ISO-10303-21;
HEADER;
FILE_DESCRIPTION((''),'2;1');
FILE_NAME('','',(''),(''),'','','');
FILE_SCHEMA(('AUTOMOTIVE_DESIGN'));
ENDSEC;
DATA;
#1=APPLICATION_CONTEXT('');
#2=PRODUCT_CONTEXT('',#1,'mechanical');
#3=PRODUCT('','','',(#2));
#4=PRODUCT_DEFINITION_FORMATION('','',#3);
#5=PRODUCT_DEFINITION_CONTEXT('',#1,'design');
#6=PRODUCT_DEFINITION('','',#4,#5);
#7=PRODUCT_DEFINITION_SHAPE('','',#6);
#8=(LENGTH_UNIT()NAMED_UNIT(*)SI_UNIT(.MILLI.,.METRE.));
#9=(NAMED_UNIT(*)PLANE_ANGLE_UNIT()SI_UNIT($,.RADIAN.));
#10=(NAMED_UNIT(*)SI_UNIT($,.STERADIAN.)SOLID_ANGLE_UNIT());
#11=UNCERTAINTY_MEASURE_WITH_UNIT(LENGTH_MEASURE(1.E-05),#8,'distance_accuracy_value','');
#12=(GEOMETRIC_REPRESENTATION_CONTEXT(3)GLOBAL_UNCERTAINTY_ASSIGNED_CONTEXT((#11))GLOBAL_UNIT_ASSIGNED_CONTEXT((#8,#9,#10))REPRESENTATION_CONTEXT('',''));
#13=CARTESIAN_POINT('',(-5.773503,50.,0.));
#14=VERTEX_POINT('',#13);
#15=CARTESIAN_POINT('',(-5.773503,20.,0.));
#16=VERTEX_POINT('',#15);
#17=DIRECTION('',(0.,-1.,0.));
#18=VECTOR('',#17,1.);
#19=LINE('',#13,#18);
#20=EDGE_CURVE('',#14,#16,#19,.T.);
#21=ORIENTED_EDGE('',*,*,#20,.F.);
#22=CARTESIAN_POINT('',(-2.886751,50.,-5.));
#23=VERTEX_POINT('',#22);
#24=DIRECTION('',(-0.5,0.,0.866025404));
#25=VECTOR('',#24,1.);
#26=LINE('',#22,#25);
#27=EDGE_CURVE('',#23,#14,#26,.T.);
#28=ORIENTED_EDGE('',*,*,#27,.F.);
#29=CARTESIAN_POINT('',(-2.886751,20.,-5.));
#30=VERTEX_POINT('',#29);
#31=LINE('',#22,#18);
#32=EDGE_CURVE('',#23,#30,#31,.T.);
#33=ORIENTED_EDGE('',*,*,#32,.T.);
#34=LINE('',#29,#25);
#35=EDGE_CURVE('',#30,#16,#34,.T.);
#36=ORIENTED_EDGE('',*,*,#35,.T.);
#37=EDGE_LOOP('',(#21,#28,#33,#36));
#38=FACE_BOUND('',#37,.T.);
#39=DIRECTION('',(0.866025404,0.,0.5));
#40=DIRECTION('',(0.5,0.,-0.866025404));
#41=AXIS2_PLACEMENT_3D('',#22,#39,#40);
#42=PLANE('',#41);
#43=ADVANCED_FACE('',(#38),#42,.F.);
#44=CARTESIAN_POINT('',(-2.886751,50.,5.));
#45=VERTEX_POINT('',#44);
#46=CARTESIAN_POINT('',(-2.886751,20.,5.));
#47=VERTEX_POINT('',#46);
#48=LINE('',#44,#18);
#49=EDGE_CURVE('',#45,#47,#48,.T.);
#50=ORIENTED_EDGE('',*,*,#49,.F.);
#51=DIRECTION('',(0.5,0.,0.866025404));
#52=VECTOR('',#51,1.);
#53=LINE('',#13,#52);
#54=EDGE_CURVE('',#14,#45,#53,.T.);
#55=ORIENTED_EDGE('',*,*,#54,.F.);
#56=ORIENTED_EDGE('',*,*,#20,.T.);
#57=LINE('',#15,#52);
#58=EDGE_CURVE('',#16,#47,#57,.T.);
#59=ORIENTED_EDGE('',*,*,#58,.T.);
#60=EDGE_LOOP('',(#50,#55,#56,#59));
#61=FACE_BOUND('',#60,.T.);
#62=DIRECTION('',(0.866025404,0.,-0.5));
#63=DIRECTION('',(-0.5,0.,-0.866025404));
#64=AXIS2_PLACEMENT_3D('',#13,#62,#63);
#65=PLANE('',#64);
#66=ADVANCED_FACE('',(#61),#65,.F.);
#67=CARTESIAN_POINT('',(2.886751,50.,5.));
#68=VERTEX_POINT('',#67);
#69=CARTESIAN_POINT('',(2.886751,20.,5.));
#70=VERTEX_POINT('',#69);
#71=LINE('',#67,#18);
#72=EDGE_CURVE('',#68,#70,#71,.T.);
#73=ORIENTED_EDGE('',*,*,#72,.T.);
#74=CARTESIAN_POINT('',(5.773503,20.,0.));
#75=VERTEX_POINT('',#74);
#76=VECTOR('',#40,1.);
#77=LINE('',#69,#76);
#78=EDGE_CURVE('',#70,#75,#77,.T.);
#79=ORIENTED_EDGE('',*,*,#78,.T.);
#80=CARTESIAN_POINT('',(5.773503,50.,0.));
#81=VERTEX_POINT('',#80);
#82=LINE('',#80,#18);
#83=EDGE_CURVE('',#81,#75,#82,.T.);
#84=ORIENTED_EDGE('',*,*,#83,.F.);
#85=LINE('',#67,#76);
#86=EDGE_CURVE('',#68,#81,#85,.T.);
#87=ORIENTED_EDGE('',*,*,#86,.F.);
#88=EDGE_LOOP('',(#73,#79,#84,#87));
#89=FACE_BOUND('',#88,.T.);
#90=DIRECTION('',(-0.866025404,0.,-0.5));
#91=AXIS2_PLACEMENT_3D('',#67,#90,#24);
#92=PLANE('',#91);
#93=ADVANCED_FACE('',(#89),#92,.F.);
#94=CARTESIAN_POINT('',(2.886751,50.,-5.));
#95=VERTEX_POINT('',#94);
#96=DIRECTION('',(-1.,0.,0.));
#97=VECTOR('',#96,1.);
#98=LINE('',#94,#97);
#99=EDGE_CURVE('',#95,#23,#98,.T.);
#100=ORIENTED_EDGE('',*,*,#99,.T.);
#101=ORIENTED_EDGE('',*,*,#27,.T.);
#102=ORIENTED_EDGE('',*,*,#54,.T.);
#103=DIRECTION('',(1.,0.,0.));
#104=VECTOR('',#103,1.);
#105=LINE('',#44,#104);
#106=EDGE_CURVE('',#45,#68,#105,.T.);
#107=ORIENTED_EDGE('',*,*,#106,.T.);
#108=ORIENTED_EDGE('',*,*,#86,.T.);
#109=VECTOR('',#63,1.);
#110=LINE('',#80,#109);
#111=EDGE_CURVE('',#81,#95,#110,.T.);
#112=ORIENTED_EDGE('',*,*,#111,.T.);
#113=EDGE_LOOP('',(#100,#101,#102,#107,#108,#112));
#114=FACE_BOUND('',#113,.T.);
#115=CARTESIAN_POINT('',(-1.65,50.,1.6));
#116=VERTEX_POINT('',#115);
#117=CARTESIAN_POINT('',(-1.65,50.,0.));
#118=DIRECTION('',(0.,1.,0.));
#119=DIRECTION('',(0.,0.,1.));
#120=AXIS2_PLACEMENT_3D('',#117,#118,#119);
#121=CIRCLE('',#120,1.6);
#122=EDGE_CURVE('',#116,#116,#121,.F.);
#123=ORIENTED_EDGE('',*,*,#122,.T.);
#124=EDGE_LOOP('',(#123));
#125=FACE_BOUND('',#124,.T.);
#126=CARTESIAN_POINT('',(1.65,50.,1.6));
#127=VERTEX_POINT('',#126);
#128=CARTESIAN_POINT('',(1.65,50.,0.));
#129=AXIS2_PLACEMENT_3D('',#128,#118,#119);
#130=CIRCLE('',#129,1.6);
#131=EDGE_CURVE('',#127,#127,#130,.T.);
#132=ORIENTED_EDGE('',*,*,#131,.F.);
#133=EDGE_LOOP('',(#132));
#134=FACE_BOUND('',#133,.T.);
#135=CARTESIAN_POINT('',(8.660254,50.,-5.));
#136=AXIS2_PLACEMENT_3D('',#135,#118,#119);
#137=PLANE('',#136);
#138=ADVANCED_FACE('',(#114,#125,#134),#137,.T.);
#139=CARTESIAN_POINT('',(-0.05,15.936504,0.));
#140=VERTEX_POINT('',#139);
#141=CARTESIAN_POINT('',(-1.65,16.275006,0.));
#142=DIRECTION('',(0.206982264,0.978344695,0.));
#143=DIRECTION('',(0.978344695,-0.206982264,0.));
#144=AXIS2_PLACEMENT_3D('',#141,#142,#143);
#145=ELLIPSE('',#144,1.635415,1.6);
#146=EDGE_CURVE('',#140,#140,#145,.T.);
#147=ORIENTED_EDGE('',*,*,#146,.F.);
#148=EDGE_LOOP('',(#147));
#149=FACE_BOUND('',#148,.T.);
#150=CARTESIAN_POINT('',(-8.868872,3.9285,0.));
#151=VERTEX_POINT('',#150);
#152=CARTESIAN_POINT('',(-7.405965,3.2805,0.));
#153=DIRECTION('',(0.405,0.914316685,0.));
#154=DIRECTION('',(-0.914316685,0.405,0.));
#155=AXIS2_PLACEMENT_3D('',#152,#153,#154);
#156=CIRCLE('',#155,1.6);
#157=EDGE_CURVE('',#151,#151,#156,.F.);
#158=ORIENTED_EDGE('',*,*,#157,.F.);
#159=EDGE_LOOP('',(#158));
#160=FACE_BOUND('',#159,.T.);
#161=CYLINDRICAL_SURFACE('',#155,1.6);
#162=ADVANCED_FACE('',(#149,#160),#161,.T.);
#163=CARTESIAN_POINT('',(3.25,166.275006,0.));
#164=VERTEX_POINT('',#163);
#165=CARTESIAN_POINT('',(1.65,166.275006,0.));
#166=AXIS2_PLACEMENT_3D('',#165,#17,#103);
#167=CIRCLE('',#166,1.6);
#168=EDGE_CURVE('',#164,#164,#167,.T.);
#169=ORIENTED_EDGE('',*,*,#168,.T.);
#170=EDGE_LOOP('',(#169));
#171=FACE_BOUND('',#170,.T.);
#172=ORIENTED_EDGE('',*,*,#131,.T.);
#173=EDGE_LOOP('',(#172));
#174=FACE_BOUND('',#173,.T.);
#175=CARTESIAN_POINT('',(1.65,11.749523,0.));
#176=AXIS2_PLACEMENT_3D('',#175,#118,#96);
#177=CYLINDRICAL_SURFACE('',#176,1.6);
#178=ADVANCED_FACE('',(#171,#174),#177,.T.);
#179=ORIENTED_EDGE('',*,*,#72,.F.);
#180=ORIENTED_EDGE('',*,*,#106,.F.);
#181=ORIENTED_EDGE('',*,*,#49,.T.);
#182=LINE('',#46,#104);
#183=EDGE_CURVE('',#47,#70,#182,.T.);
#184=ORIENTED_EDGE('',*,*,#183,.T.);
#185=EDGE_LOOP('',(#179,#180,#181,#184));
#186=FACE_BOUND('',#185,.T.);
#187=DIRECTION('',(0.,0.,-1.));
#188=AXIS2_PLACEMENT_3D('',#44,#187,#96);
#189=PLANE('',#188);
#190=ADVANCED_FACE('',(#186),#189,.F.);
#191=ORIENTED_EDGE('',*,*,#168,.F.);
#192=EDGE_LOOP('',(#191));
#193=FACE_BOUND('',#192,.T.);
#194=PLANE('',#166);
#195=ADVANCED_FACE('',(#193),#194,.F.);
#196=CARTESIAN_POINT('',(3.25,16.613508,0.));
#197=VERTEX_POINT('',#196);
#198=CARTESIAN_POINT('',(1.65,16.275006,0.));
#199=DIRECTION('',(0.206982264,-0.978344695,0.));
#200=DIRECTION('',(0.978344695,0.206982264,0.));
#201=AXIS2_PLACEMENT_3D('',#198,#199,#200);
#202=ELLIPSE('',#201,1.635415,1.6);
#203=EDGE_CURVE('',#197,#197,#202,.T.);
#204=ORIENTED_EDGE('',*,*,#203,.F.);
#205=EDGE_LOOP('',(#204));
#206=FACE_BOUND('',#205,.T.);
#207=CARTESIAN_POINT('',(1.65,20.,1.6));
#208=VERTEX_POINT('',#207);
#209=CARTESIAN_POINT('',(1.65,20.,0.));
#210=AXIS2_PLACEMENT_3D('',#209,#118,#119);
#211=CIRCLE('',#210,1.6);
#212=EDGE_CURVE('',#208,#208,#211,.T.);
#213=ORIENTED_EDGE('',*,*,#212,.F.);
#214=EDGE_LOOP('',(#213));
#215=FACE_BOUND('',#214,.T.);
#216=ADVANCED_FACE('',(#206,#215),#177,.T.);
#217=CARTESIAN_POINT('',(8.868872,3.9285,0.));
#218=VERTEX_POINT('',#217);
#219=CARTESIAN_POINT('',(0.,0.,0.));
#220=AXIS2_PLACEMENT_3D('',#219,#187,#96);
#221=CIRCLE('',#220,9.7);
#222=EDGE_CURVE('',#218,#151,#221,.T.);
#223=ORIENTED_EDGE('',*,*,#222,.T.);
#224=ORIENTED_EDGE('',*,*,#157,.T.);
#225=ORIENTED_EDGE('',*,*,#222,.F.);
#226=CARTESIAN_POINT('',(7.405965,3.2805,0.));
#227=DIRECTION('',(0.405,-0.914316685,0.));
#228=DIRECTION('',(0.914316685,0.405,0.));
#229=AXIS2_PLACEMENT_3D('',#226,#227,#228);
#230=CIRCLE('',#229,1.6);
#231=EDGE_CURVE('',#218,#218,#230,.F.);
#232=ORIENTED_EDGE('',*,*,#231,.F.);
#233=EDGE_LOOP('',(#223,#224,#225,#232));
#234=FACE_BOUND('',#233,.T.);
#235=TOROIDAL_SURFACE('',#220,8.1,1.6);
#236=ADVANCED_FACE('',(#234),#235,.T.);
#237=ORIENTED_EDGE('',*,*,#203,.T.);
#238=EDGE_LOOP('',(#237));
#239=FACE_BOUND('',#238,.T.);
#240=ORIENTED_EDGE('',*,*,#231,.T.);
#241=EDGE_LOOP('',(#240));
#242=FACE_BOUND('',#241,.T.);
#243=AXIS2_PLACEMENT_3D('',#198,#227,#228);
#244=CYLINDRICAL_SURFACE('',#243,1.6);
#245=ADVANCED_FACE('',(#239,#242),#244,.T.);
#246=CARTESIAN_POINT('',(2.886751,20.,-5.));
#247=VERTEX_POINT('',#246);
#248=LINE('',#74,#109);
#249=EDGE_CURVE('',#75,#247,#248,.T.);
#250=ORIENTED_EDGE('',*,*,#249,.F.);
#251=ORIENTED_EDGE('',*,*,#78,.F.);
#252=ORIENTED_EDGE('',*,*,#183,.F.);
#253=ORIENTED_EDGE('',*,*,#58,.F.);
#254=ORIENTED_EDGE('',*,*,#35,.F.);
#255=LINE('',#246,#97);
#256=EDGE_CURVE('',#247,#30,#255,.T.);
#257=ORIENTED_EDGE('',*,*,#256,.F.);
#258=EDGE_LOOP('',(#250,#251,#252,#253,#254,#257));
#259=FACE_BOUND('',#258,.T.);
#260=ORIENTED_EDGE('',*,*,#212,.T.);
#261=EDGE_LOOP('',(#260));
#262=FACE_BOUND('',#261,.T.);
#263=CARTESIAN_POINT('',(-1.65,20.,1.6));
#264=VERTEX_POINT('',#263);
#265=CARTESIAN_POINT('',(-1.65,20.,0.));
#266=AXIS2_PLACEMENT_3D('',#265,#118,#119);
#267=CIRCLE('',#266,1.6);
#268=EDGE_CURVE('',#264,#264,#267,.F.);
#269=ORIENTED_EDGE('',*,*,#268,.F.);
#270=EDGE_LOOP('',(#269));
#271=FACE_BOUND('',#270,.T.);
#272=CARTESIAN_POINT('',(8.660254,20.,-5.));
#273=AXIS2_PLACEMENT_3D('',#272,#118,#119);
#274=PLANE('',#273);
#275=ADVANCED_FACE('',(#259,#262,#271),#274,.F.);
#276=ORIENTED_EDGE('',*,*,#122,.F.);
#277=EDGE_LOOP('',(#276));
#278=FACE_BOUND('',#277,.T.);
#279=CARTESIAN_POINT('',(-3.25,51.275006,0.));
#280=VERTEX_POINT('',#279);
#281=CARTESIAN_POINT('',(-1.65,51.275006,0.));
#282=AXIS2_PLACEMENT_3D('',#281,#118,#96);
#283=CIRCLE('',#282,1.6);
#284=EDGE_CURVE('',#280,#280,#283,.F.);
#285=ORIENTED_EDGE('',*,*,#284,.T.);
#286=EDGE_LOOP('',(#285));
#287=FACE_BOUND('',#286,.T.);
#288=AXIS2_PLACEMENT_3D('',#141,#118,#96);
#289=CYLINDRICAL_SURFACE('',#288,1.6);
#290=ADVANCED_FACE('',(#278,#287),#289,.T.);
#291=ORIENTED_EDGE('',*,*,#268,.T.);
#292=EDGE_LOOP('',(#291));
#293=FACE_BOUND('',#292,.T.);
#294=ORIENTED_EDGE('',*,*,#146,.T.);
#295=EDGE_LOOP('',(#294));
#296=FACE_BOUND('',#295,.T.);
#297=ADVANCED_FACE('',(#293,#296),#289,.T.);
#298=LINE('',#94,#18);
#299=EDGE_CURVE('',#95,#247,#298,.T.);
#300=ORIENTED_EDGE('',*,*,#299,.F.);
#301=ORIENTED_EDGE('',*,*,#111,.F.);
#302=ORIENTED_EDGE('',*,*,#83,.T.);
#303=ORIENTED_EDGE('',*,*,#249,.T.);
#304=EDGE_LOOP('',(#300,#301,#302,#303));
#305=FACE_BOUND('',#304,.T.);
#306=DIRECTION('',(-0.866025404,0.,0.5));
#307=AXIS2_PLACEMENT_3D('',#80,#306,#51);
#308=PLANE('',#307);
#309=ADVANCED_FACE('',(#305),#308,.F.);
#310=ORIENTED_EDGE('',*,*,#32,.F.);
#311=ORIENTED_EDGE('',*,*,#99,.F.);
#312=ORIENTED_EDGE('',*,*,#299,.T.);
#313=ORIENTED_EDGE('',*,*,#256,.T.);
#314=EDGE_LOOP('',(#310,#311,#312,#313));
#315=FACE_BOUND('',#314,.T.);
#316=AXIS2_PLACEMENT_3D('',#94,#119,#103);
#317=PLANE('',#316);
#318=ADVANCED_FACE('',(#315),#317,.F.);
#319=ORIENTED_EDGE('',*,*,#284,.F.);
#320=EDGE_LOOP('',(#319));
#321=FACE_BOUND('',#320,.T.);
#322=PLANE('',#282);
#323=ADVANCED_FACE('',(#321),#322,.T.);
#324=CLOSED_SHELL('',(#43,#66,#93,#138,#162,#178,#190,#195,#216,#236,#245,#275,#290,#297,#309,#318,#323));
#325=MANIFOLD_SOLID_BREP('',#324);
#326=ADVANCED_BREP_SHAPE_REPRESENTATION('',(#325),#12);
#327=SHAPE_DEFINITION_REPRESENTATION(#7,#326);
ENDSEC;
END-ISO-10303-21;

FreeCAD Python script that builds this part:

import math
import FreeCAD as App
import Part
import Sketcher
from FreeCAD import Vector
Q = App.Units.Quantity


def add_polygon(sketch, points):
    """Adds a closed chain of lines whose ends are joined by coincident constraints."""
    first, n = sketch.GeometryCount, len(points)
    for a, b in zip(points, points[1:] + points[:1]):
        sketch.addGeometry(Part.LineSegment(App.Vector(*a, 0), App.Vector(*b, 0)), False)
    for i in range(n):
        sketch.addConstraint(Sketcher.Constraint("Coincident", first + i, 2, first + (i + 1) % n, 1))

doc = App.newDocument("Part")
body = doc.addObject("PartDesign::Body", "Body")

sketch1 = body.newObject("Sketcher::SketchObject", "Sketch")
sketch1.AttachmentSupport = (doc.getObject("XZ_Plane"), [""])
sketch1.MapMode = "FlatFace"
sketch1.AttachmentOffset = App.Placement(Vector(0, 0, -166.275006), App.Rotation())
sketch1.addGeometry(Part.Circle(Vector(1.65, 0, 0), Vector(0, 0, 1), 1.6), False)
sketch1.addConstraint([
    Sketcher.Constraint("PointOnObject", 0, 3, -1),
    Sketcher.Constraint("Diameter", 0, Q("3.2 mm")),
    Sketcher.Constraint("DistanceX", -1, 1, 0, 3, Q("1.65 mm")),
])

sketch2 = body.newObject("Sketcher::SketchObject", "Sketch001")
sketch2.AttachmentSupport = (doc.getObject("XY_Plane"), [""])
sketch2.MapMode = "FlatFace"
sketch2.addGeometry([
    Part.LineSegment(Vector(1.65, 166.275006, 0), Vector(1.65, 16.275006, 0)),
    Part.LineSegment(Vector(1.65, 16.275006, 0), Vector(7.405965, 3.2805, 0)),
    Part.ArcOfCircle(Part.Circle(Vector(0, 0, 0), Vector(0, 0, 1), 8.1), math.radians(156.108873), math.radians(383.891127)),
    Part.LineSegment(Vector(-7.405965, 3.2805, 0), Vector(-1.65, 16.275006, 0)),
    Part.LineSegment(Vector(-1.65, 16.275006, 0), Vector(-1.65, 51.275006, 0)),
], False)
sketch2.addConstraint([
    Sketcher.Constraint("Coincident", 0, 2, 1, 1),
    Sketcher.Constraint("Tangent", 1, 2, 2, 2),
    Sketcher.Constraint("Tangent", 2, 1, 3, 1),
    Sketcher.Constraint("Coincident", 3, 2, 4, 1),
    Sketcher.Constraint("Vertical", 0),
    Sketcher.Constraint("Vertical", 4),
    Sketcher.Constraint("Coincident", 2, 3, -1, 1),
    Sketcher.Constraint("Symmetric", 0, 2, 3, 2, -2),
    Sketcher.Constraint("Radius", 2, Q("8.1 mm")),
    Sketcher.Constraint("DistanceY", 0, 2, 0, 1, Q("150 mm")),
    Sketcher.Constraint("DistanceY", 4, 1, 4, 2, Q("35 mm")),
    Sketcher.Constraint("DistanceX", 3, 2, 0, 2, Q("3.3 mm")),
    Sketcher.Constraint("DistanceY", -1, 1, 1, 2, Q("3.2805 mm")),
])
doc.recompute()

additivepipe = body.newObject("PartDesign::AdditivePipe", "AdditivePipe")
additivepipe.Profile = sketch1
additivepipe.Spine = (sketch2, ["Edge1", "Edge2", "Edge3", "Edge4", "Edge5"])
additivepipe.Transition = "Right corner"

sketch3 = body.newObject("Sketcher::SketchObject", "Sketch002")
sketch3.AttachmentSupport = (doc.getObject("XZ_Plane"), [""])
sketch3.MapMode = "FlatFace"
sketch3.AttachmentOffset = App.Placement(Vector(0, 0, -20), App.Rotation())
add_polygon(sketch3, [(5.773503, 0), (2.886751, -5), (-2.886751, -5), (-5.773503, 0), (-2.886751, 5), (2.886751, 5)])
sketch3.addConstraint([
    Sketcher.Constraint("Horizontal", 1),
    Sketcher.Constraint("Horizontal", 4),
    Sketcher.Constraint("Symmetric", 0, 2, 3, 2, -1, 1),
    Sketcher.Constraint("Symmetric", 2, 2, 5, 2, -1, 1),
    Sketcher.Constraint("PointOnObject", 2, 2, -1),
    Sketcher.Constraint("Parallel", 2, 5),
    Sketcher.Constraint("Vertical", 1, 2, 3, 2),
    Sketcher.Constraint("Angle", 0, Q("-120 deg")),
    Sketcher.Constraint("DistanceY", 0, 2, -1, 1, Q("5 mm")),
    Sketcher.Constraint("DistanceX", 1, 2, 1, 1, Q("5.773503 mm")),
])
pad1 = body.newObject("PartDesign::Pad", "Pad")
pad1.Profile = sketch3
pad1.Length = 30
pad1.Reversed = True

doc.recompute()
